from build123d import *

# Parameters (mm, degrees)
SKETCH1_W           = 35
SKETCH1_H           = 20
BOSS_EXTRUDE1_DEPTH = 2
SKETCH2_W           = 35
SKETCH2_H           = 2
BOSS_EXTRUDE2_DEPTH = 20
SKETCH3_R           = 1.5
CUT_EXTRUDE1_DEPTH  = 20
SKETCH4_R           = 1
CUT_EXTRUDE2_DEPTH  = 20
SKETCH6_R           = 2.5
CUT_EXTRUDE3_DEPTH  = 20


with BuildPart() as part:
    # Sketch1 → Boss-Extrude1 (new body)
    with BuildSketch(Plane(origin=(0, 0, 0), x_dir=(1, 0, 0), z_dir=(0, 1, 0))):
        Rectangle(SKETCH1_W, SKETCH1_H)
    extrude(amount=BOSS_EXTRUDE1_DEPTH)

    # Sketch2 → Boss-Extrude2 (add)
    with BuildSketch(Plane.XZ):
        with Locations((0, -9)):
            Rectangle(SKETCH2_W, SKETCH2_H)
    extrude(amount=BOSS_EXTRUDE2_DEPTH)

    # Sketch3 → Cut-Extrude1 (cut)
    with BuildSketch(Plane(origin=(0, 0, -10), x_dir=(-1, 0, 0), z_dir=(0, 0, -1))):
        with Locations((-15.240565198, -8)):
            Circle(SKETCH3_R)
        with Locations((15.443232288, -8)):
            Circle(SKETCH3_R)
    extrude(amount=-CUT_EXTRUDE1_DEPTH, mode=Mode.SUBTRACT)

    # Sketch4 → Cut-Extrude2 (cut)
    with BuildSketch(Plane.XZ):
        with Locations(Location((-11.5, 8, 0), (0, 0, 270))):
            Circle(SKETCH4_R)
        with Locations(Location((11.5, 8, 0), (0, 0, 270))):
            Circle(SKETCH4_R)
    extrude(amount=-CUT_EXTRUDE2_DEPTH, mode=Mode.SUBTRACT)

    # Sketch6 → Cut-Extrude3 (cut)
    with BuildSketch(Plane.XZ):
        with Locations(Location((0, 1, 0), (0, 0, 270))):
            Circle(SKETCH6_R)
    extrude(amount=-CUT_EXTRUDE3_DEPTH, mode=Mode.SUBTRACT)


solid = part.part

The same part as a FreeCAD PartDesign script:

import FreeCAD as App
import Part
import Sketcher
from FreeCAD import Vector


def add_polygon(sketch, points):
    """Adds a closed chain of lines whose ends are joined by coincident constraints."""
    first, n = sketch.GeometryCount, len(points)
    for a, b in zip(points, points[1:] + points[:1]):
        sketch.addGeometry(Part.LineSegment(App.Vector(*a, 0), App.Vector(*b, 0)), False)
    for i in range(n):
        sketch.addConstraint(Sketcher.Constraint("Coincident", first + i, 2, first + (i + 1) % n, 1))

doc = App.newDocument("Part")
body = doc.addObject("PartDesign::Body", "Body")

# Sketch on XZ plane
sketch1 = body.newObject("Sketcher::SketchObject", "Sketch")
sketch1.AttachmentSupport = (doc.getObject("XZ_Plane"), [""])
sketch1.MapMode = "FlatFace"
add_polygon(sketch1, [(-17.5, -10), (-17.5, 10), (17.5, 10), (17.5, -10)])  # lines 0-3
sketch1.addConstraint(Sketcher.Constraint("Vertical", 0))
sketch1.addConstraint(Sketcher.Constraint("Horizontal", 1))
sketch1.addConstraint(Sketcher.Constraint("Vertical", 2))
sketch1.addConstraint(Sketcher.Constraint("Horizontal", 3))
sketch1.addConstraint(Sketcher.Constraint("Symmetric", 0, 2, 2, 2, -1, 1))
sketch1.addConstraint(Sketcher.Constraint("DistanceX", 1, 1, 1, 2, 35.0))
sketch1.addConstraint(Sketcher.Constraint("DistanceY", 0, 1, 0, 2, 20.0))
pad1 = body.newObject("PartDesign::Pad", "Pad")
pad1.Profile = sketch1
pad1.Length = 2
pad1.Reversed = True

# Sketch on XZ plane
sketch2 = body.newObject("Sketcher::SketchObject", "Sketch001")
sketch2.AttachmentSupport = (doc.getObject("XZ_Plane"), [""])
sketch2.MapMode = "FlatFace"
add_polygon(sketch2, [(-17.5, -8), (-17.5, -10), (17.5, -10), (17.5, -8)])  # lines 0-3
sketch2.addConstraint(Sketcher.Constraint("Vertical", 0))
sketch2.addConstraint(Sketcher.Constraint("Horizontal", 1))
sketch2.addConstraint(Sketcher.Constraint("Vertical", 2))
sketch2.addConstraint(Sketcher.Constraint("Horizontal", 3))
sketch2.addConstraint(Sketcher.Constraint("DistanceX", 1, 1, 1, 2, 35.0))
sketch2.addConstraint(Sketcher.Constraint("DistanceY", 0, 2, 0, 1, 2.0))
sketch2.addConstraint(Sketcher.Constraint("DistanceY", 0, 2, -1, 1, 10.0))
sketch2.addConstraint(Sketcher.Constraint("DistanceX", 0, 2, -1, 1, 17.5))
pad2 = body.newObject("PartDesign::Pad", "Pad001")
pad2.Profile = sketch2
pad2.Length = 20

# Sketch on XY plane
sketch3 = body.newObject("Sketcher::SketchObject", "Sketch002")
sketch3.AttachmentSupport = (doc.getObject("XY_Plane"), [""])
sketch3.MapMode = "FlatFace"
sketch3.AttachmentOffset = App.Placement(Vector(0, 0, -10), App.Rotation())
sketch3.addGeometry(Part.Circle(Vector(15.240565, -8, 0), Vector(0, 0, 1), 1.5), False)
sketch3.addGeometry(Part.Circle(Vector(-15.443232, -8, 0), Vector(0, 0, 1), 1.5), False)
sketch3.addConstraint(Sketcher.Constraint("Equal", 0, 1))
sketch3.addConstraint(Sketcher.Constraint("Horizontal", 0, 3, 1, 3))
sketch3.addConstraint(Sketcher.Constraint("Diameter", 0, 3.0))
sketch3.addConstraint(Sketcher.Constraint("DistanceY", 0, 3, -1, 1, 8.0))
sketch3.addConstraint(Sketcher.Constraint("DistanceX", -1, 1, 0, 3, 15.240565))
sketch3.addConstraint(Sketcher.Constraint("DistanceX", 1, 3, -1, 1, 15.443232))
pocket1 = body.newObject("PartDesign::Pocket", "Pocket")
pocket1.Profile = sketch3
pocket1.Length = 20
pocket1.Reversed = True

# Sketch on XZ plane
sketch4 = body.newObject("Sketcher::SketchObject", "Sketch003")
sketch4.AttachmentSupport = (doc.getObject("XZ_Plane"), [""])
sketch4.MapMode = "FlatFace"
sketch4.addGeometry(Part.Circle(Vector(-11.5, 8, 0), Vector(0, 0, 1), 1), False)
sketch4.addGeometry(Part.Circle(Vector(11.5, 8, 0), Vector(0, 0, 1), 1), False)
sketch4.addConstraint(Sketcher.Constraint("Equal", 0, 1))
sketch4.addConstraint(Sketcher.Constraint("Symmetric", 0, 3, 1, 3, -2))
sketch4.addConstraint(Sketcher.Constraint("Diameter", 0, 2.0))
sketch4.addConstraint(Sketcher.Constraint("DistanceY", -1, 1, 0, 3, 8.0))
sketch4.addConstraint(Sketcher.Constraint("DistanceX", 0, 3, 1, 3, 23.0))
pocket2 = body.newObject("PartDesign::Pocket", "Pocket001")
pocket2.Profile = sketch4
pocket2.Length = 20

# Sketch on XZ plane
sketch5 = body.newObject("Sketcher::SketchObject", "Sketch004")
sketch5.AttachmentSupport = (doc.getObject("XZ_Plane"), [""])
sketch5.MapMode = "FlatFace"
sketch5.addGeometry(Part.Circle(Vector(0, 1, 0), Vector(0, 0, 1), 2.5), False)
sketch5.addConstraint(Sketcher.Constraint("PointOnObject", 0, 3, -2))
sketch5.addConstraint(Sketcher.Constraint("Diameter", 0, 5.0))
sketch5.addConstraint(Sketcher.Constraint("DistanceY", -1, 1, 0, 3, 1.0))
pocket3 = body.newObject("PartDesign::Pocket", "Pocket002")
pocket3.Profile = sketch5
pocket3.Length = 20

doc.recompute()
